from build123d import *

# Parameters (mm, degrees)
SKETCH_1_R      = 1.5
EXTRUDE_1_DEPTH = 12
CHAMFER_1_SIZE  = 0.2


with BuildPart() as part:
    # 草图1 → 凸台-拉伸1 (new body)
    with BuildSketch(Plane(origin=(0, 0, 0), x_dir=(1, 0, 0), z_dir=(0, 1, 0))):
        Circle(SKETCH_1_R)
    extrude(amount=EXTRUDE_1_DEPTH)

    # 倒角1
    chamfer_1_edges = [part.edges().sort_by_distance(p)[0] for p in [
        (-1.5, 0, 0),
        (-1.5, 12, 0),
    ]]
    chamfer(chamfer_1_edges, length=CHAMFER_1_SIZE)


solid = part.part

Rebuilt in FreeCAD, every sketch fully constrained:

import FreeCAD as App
import Part
import Sketcher
from FreeCAD import Vector


def edges_at(feature, points):
    """Names of the edges that pass closest to the given points."""
    edges = feature.Shape.Edges
    near = lambda p: min(range(len(edges)), key=lambda i: edges[i].distToShape(Part.Vertex(*p))[0])
    return sorted({f"Edge{near(p) + 1}" for p in points})

doc = App.newDocument("Part")
params = doc.addObject("Spreadsheet::Sheet", "Params")
for row, (alias, value) in enumerate([
    ("sketch1_diameter", "3 mm"),
    ("pad1_length", "12 mm"),
    ("chamfer_size", "0.2 mm"),
], start=1):
    params.set(f"A{row}", alias)
    params.set(f"B{row}", "=" + value)
    params.setAlias(f"B{row}", alias)

body = doc.addObject("PartDesign::Body", "Body")

# Sketch on XZ plane
sketch1 = body.newObject("Sketcher::SketchObject", "Sketch")
sketch1.AttachmentSupport = (doc.getObject("XZ_Plane"), [""])
sketch1.MapMode = "FlatFace"
sketch1.addGeometry(Part.Circle(Vector(0, 0, 0), Vector(0, 0, 1), 1.5), False)
sketch1.addConstraint(Sketcher.Constraint("Coincident", 0, 3, -1, 1))
sketch1.addConstraint(Sketcher.Constraint("Diameter", 0, 3.0))
sketch1.setExpression("Constraints[1]", "Params.sketch1_diameter")
pad1 = body.newObject("PartDesign::Pad", "Pad")
pad1.Profile = sketch1
pad1.setExpression("Length", "Params.pad1_length")
pad1.Reversed = True
doc.recompute()

chamfer = body.newObject("PartDesign::Chamfer", "Chamfer")
chamfer.Base = (pad1, edges_at(pad1, [(-1.5, 0, 0), (-1.5, 12, 0)]))
chamfer.setExpression("Size", "Params.chamfer_size")

doc.recompute()
